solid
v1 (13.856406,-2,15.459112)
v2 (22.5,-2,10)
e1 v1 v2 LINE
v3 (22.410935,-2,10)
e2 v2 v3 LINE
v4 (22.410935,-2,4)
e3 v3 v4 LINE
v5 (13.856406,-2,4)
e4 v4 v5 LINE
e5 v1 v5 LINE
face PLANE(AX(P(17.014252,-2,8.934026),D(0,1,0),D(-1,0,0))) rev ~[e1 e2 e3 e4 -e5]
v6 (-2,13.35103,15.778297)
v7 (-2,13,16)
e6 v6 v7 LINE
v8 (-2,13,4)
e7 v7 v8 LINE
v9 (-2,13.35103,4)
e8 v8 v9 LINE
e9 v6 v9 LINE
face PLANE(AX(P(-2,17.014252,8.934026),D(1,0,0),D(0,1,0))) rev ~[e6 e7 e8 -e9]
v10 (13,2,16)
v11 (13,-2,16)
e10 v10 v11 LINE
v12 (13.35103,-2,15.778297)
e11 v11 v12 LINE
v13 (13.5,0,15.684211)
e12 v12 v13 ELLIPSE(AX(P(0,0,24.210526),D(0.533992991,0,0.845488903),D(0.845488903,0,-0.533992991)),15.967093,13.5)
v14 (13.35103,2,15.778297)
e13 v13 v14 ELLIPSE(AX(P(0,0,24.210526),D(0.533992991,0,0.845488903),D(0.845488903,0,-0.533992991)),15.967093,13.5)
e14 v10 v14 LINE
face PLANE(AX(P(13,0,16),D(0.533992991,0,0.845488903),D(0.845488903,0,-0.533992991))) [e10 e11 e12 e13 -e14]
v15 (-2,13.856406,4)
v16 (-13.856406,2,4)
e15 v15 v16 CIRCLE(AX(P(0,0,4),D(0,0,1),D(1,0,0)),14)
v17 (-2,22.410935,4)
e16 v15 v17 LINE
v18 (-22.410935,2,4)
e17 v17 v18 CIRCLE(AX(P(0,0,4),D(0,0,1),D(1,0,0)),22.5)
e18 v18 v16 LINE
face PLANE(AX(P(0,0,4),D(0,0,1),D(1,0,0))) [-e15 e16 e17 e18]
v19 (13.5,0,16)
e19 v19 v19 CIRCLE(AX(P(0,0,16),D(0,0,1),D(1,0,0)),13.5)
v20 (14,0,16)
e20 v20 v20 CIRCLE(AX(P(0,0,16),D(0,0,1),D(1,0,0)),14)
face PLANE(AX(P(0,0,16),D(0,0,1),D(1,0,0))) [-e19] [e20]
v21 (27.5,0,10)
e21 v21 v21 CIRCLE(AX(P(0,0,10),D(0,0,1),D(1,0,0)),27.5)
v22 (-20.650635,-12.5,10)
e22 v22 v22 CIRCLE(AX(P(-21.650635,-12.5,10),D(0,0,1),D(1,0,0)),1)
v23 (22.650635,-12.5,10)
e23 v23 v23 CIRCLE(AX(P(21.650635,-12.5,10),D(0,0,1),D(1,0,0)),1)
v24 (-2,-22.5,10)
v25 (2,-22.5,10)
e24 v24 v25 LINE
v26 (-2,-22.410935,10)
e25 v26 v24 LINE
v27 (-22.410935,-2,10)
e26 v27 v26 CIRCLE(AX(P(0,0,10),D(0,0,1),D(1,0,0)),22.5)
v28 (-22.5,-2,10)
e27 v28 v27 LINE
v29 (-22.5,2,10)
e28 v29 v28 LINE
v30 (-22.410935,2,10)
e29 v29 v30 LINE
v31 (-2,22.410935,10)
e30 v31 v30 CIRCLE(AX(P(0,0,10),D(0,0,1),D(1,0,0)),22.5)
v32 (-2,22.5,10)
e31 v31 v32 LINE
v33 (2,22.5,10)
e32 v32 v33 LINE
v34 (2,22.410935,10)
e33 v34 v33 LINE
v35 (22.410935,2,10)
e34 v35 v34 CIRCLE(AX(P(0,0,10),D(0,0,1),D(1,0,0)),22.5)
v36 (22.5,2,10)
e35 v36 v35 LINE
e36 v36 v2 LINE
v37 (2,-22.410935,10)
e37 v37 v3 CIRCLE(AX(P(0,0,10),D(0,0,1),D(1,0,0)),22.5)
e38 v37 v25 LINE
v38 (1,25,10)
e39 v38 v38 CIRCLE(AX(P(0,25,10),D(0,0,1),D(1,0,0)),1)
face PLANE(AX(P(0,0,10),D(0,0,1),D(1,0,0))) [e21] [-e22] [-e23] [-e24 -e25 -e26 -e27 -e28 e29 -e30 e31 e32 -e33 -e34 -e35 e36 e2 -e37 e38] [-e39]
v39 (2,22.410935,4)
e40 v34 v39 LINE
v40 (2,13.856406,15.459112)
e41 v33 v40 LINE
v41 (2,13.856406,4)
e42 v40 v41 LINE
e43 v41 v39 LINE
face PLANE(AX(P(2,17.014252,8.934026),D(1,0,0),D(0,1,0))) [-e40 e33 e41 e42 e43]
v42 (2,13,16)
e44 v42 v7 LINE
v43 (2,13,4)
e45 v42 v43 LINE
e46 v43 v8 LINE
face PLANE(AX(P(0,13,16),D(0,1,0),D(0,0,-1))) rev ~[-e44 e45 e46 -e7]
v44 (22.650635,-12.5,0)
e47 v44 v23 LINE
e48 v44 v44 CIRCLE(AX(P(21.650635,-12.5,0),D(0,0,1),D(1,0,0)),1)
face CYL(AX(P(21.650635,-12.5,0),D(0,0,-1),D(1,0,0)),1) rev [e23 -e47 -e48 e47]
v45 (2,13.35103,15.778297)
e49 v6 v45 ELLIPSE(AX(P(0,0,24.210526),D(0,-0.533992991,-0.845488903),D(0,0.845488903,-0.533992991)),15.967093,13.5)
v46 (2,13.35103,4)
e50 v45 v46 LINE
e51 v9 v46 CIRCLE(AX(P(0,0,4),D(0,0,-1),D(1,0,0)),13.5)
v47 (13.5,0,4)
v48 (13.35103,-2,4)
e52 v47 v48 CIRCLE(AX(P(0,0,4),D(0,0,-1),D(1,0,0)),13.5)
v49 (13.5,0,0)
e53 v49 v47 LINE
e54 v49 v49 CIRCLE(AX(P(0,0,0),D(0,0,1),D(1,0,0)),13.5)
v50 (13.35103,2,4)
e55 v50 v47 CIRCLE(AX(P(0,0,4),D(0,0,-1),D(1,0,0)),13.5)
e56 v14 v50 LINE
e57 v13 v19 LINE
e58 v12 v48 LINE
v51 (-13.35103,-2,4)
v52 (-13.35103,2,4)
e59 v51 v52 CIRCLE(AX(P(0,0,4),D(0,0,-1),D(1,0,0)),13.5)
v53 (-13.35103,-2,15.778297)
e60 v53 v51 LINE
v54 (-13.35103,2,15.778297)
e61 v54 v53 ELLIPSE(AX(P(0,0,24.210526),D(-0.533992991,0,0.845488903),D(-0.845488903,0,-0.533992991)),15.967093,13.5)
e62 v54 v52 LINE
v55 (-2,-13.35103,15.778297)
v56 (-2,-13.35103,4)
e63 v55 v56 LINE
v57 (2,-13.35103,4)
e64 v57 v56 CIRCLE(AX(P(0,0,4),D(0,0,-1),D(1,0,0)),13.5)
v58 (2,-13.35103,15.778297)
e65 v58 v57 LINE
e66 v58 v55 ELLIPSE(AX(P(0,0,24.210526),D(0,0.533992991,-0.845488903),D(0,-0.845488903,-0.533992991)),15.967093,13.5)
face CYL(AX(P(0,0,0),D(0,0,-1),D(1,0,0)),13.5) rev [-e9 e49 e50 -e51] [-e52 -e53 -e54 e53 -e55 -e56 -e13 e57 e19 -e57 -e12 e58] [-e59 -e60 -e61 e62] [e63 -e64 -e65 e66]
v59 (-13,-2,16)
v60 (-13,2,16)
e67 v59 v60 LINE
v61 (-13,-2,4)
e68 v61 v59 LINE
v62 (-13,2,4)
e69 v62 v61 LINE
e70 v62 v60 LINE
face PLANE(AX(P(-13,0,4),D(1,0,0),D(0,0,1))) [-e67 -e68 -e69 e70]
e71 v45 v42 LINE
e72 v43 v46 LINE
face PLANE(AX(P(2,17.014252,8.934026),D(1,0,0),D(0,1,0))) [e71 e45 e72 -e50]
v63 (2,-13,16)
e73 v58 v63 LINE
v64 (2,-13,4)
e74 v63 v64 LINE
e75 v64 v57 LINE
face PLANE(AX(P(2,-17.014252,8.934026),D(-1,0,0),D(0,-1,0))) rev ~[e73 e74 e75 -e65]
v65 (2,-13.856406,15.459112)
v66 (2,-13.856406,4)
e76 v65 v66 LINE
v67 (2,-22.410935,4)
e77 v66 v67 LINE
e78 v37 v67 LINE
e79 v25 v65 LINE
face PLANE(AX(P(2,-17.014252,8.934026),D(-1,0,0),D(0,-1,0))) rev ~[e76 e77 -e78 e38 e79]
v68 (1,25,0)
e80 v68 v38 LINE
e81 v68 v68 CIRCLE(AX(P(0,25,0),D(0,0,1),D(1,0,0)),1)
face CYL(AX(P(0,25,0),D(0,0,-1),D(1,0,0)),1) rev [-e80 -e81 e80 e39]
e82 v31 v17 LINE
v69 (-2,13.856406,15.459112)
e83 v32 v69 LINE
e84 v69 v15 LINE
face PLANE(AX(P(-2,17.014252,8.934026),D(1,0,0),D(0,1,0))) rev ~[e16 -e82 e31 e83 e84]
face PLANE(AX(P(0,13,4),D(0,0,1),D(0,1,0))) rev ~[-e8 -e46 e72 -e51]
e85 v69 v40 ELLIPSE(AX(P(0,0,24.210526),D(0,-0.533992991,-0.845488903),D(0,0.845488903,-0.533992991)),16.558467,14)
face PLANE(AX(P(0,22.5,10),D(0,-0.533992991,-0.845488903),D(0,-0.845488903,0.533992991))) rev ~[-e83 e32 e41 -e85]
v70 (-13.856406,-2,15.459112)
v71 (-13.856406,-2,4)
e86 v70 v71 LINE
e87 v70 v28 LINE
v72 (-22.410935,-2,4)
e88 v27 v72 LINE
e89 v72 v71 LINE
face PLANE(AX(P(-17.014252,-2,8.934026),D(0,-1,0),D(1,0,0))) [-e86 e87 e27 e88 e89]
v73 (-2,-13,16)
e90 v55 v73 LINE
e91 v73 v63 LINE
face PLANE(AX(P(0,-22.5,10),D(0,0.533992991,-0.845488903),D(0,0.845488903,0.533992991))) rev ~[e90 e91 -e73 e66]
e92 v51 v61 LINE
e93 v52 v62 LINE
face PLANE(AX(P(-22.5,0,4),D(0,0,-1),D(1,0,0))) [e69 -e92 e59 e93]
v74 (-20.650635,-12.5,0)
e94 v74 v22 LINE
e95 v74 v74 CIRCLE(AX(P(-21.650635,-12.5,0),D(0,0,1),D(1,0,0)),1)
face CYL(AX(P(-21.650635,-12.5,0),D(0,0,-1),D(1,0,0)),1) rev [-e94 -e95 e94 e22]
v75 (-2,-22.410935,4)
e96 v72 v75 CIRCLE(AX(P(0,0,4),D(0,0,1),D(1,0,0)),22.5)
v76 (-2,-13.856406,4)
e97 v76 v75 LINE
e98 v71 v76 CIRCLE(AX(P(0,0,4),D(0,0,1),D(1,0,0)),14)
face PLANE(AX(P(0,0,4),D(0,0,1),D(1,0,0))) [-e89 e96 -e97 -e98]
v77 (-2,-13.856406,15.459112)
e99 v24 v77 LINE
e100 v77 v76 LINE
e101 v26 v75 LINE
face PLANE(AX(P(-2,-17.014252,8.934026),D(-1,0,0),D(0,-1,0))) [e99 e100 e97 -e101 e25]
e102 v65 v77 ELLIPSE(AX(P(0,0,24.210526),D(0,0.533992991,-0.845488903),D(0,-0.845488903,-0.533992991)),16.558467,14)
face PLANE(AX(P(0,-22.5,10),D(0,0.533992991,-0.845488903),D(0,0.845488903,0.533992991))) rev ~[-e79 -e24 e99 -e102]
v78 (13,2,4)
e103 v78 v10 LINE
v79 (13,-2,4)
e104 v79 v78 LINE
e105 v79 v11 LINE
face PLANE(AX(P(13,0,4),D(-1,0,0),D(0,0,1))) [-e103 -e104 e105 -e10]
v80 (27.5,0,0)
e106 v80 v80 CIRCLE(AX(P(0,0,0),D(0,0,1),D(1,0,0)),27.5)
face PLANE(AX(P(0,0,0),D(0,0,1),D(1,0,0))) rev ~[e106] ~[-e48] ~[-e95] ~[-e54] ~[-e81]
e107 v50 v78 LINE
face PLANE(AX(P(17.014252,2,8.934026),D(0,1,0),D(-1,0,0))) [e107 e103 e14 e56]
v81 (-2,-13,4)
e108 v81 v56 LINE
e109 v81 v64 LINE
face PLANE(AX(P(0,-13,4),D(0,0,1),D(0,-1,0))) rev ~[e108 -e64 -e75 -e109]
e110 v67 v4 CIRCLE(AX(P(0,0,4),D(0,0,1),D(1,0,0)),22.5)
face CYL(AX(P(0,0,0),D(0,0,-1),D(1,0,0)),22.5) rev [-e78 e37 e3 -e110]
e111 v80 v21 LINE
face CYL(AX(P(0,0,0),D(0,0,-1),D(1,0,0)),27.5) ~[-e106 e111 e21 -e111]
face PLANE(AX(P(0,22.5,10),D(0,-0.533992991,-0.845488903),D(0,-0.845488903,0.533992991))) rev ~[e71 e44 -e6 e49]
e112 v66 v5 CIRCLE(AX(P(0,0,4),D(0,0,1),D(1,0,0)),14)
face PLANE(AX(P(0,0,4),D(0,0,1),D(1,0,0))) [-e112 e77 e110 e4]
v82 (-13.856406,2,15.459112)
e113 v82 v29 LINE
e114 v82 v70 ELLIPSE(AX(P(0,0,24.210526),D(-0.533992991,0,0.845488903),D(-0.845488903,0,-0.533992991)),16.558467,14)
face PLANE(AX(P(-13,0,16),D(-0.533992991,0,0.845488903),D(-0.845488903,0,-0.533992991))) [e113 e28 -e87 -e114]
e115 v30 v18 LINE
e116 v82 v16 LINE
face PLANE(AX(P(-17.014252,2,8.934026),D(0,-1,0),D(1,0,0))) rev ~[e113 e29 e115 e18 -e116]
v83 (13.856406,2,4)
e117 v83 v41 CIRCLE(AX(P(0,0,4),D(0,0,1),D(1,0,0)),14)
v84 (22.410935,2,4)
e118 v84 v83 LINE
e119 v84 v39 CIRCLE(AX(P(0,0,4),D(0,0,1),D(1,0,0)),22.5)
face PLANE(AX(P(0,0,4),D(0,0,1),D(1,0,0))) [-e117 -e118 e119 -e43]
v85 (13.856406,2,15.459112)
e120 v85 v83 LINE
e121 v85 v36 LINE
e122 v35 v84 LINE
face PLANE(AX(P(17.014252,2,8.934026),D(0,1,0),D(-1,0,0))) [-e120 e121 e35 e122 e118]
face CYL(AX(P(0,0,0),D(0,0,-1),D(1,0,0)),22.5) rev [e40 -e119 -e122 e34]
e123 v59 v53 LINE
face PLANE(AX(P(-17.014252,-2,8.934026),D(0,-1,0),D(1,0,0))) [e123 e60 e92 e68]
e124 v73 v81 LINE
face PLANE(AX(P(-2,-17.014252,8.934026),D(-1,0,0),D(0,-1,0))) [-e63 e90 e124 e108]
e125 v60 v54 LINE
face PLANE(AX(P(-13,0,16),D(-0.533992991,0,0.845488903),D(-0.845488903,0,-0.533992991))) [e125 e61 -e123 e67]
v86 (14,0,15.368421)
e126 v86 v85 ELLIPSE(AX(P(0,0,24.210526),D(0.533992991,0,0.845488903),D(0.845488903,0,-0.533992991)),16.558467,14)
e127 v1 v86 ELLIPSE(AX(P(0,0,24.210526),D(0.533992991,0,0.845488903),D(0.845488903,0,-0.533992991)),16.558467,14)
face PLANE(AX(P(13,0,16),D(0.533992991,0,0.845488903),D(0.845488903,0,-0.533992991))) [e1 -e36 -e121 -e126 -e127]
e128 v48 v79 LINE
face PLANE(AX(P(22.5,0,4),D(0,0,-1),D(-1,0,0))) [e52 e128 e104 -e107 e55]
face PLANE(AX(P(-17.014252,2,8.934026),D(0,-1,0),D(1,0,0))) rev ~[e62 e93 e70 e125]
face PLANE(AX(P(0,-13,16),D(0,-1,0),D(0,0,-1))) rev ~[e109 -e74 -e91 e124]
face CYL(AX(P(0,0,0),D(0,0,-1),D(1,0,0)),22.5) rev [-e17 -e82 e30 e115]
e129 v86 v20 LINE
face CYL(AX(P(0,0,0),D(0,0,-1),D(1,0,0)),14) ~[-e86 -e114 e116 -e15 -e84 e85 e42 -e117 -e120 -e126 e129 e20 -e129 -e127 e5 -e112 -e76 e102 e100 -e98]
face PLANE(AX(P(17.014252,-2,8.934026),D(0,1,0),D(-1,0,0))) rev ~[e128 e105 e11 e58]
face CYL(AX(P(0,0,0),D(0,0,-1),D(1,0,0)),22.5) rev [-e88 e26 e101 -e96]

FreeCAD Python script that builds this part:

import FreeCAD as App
import Part
import Sketcher

V = App.Vector


def add_polygon(sketch, points):
    """Adds a closed chain of lines whose ends are joined by coincident constraints."""
    first, n = sketch.GeometryCount, len(points)
    for a, b in zip(points, points[1:] + points[:1]):
        sketch.addGeometry(Part.LineSegment(App.Vector(*a, 0), App.Vector(*b, 0)), False)
    for i in range(n):
        sketch.addConstraint(Sketcher.Constraint("Coincident", first + i, 2, first + (i + 1) % n, 1))

doc = App.newDocument("Part")
body = doc.addObject("PartDesign::Body", "Body")

# Sketch on XY plane
sketch1 = body.newObject("Sketcher::SketchObject", "Sketch")
sketch1.AttachmentSupport = (doc.getObject("XY_Plane"), [""])
sketch1.MapMode = "FlatFace"
sketch1.addGeometry(Part.Circle(V(0, 0, 0), V(0, 0, 1), 27.5), False)
sketch1.addGeometry(Part.Circle(V(-21.7, -12.5, 0), V(0, 0, 1), 1), False)
sketch1.addGeometry(Part.Circle(V(21.7, -12.5, 0), V(0, 0, 1), 1), False)
sketch1.addGeometry(Part.Circle(V(0, 0, 0), V(0, 0, 1), 22.5), False)
sketch1.addGeometry(Part.Circle(V(0, 25, 0), V(0, 0, 1), 1), False)
sketch1.addConstraint(Sketcher.Constraint("Coincident", 0, 3, -1, 1))
sketch1.addConstraint(Sketcher.Constraint("Coincident", 3, 3, -1, 1))
sketch1.addConstraint(Sketcher.Constraint("Equal", 1, 2))
sketch1.addConstraint(Sketcher.Constraint("Equal", 2, 4))
sketch1.addConstraint(Sketcher.Constraint("Symmetric", 1, 3, 2, 3, -2))
sketch1.addConstraint(Sketcher.Constraint("PointOnObject", 4, 3, -2))
sketch1.addConstraint(Sketcher.Constraint("Diameter", 0, 55.0))
sketch1.addConstraint(Sketcher.Constraint("Diameter", 1, 2.0))
sketch1.addConstraint(Sketcher.Constraint("Diameter", 3, 45.0))
sketch1.addConstraint(Sketcher.Constraint("DistanceY", -1, 1, 4, 3, 25.0))
sketch1.addConstraint(Sketcher.Constraint("DistanceY", 1, 3, -1, 1, 12.5))
sketch1.addConstraint(Sketcher.Constraint("DistanceX", 1, 3, 2, 3, 43.30127))
pad1 = body.newObject("PartDesign::Pad", "Pad")
pad1.Profile = sketch1
pad1.Length = 10

# Sketch on XY plane
sketch2 = body.newObject("Sketcher::SketchObject", "Sketch001")
sketch2.AttachmentSupport = (doc.getObject("XY_Plane"), [""])
sketch2.MapMode = "FlatFace"
sketch2.addGeometry(Part.Circle(V(0, 0, 0), V(0, 0, 1), 22), False)
sketch2.addGeometry(Part.Circle(V(0, 0, 0), V(0, 0, 1), 14), False)
sketch2.addConstraint(Sketcher.Constraint("Coincident", 0, 3, -1, 1))
sketch2.addConstraint(Sketcher.Constraint("Coincident", 1, 3, -1, 1))
sketch2.addConstraint(Sketcher.Constraint("Diameter", 0, 45.0))
sketch2.addConstraint(Sketcher.Constraint("Diameter", 1, 28.0))
pad2 = body.newObject("PartDesign::Pad", "Pad001")
pad2.Profile = sketch2
pad2.Length = 4

# Sketch on XZ plane
sketch3 = body.newObject("Sketcher::SketchObject", "Sketch002")
sketch3.AttachmentSupport = (doc.getObject("XZ_Plane"), [""])
sketch3.MapMode = "FlatFace"
add_polygon(sketch3, [(22, 4), (22, 10), (13, 16), (13, 4)])  # lines 0-3
add_polygon(sketch3, [(-22, 10), (-22, 4), (-13, 4), (-13, 16)])  # lines 4-7
sketch3.addConstraint(Sketcher.Constraint("Vertical", 0))
sketch3.addConstraint(Sketcher.Constraint("Vertical", 2))
sketch3.addConstraint(Sketcher.Constraint("Horizontal", 3))
sketch3.addConstraint(Sketcher.Constraint("Vertical", 4))
sketch3.addConstraint(Sketcher.Constraint("Horizontal", 5))
sketch3.addConstraint(Sketcher.Constraint("Vertical", 6))
sketch3.addConstraint(Sketcher.Constraint("Symmetric", 3, 2, 4, 2, -2))
sketch3.addConstraint(Sketcher.Constraint("Symmetric", 1, 2, 6, 2, -2))
sketch3.addConstraint(Sketcher.Constraint("Horizontal", 0, 2, 7, 2))
sketch3.addConstraint(Sketcher.Constraint("DistanceY", 0, 1, 0, 2, 6.0))
sketch3.addConstraint(Sketcher.Constraint("DistanceY", 2, 2, 2, 1, 12.0))
sketch3.addConstraint(Sketcher.Constraint("DistanceX", 3, 1, 3, 2, 9.5))
sketch3.addConstraint(Sketcher.Constraint("DistanceY", -1, 1, 0, 2, 10.0))
sketch3.addConstraint(Sketcher.Constraint("DistanceX", -1, 1, 1, 2, 13.0))
pad3 = body.newObject("PartDesign::Pad", "Pad002")
pad3.Profile = sketch3
pad3.Length = 4
pad3.Midplane = True

# Sketch on YZ plane
sketch4 = body.newObject("Sketcher::SketchObject", "Sketch003")
sketch4.AttachmentSupport = (doc.getObject("YZ_Plane"), [""])
sketch4.MapMode = "FlatFace"
add_polygon(sketch4, [(13, 4), (22, 4), (22, 10), (13, 16)])  # lines 0-3
add_polygon(sketch4, [(-22, 4), (-13, 4), (-13, 16), (-22, 10)])  # lines 4-7
sketch4.addConstraint(Sketcher.Constraint("Horizontal", 0))
sketch4.addConstraint(Sketcher.Constraint("Vertical", 1))
sketch4.addConstraint(Sketcher.Constraint("Vertical", 3))
sketch4.addConstraint(Sketcher.Constraint("Horizontal", 4))
sketch4.addConstraint(Sketcher.Constraint("Vertical", 5))
sketch4.addConstraint(Sketcher.Constraint("Vertical", 7))
sketch4.addConstraint(Sketcher.Constraint("Symmetric", 3, 2, 4, 2, -2))
sketch4.addConstraint(Sketcher.Constraint("Symmetric", 1, 2, 6, 2, -2))
sketch4.addConstraint(Sketcher.Constraint("Horizontal", 2, 2, 5, 2))
sketch4.addConstraint(Sketcher.Constraint("DistanceY", 1, 1, 1, 2, 6.0))
sketch4.addConstraint(Sketcher.Constraint("DistanceY", 3, 2, 3, 1, 12.0))
sketch4.addConstraint(Sketcher.Constraint("DistanceX", 0, 1, 0, 2, 9.5))
sketch4.addConstraint(Sketcher.Constraint("DistanceY", -1, 1, 0, 2, 4.0))
sketch4.addConstraint(Sketcher.Constraint("DistanceX", -1, 1, 2, 2, 13.0))
pad4 = body.newObject("PartDesign::Pad", "Pad003")
pad4.Profile = sketch4
pad4.Length = 4
pad4.Midplane = True

# Sketch on XY plane
sketch5 = body.newObject("Sketcher::SketchObject", "Sketch004")
sketch5.AttachmentSupport = (doc.getObject("XY_Plane"), [""])
sketch5.MapMode = "FlatFace"
sketch5.addGeometry(Part.Circle(V(0, 0, 0), V(0, 0, 1), 14), False)
sketch5.addGeometry(Part.Circle(V(0, 0, 0), V(0, 0, 1), 14), False)
sketch5.addConstraint(Sketcher.Constraint("Coincident", 0, 3, -1, 1))
sketch5.addConstraint(Sketcher.Constraint("Coincident", 1, 3, -1, 1))
sketch5.addConstraint(Sketcher.Constraint("Diameter", 0, 28.0))
sketch5.addConstraint(Sketcher.Constraint("Diameter", 1, 27.0))
pad5 = body.newObject("PartDesign::Pad", "Pad004")
pad5.Profile = sketch5
pad5.Length = 16

doc.recompute()
